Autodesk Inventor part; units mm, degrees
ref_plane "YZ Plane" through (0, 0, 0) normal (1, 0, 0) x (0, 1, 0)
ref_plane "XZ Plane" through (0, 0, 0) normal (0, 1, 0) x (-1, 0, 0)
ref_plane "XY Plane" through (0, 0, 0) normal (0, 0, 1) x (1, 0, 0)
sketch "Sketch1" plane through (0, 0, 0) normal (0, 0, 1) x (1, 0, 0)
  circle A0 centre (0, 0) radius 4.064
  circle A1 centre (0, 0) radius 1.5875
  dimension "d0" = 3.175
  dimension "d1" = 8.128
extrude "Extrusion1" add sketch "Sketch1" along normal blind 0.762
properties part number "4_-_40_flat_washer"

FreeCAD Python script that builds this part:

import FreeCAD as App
import Part
import Sketcher
Q = App.Units.Quantity

doc = App.newDocument("Part")
body = doc.addObject("PartDesign::Body", "Body")

# Sketch on XY plane
sketch1 = body.newObject("Sketcher::SketchObject", "Sketch")
sketch1.AttachmentSupport = (doc.getObject("XY_Plane"), [""])
sketch1.MapMode = "FlatFace"
sketch1.addGeometry([
    Part.Circle(App.Vector(0, 0, 0), App.Vector(0, 0, 1), 4.1),
    Part.Circle(App.Vector(0, 0, 0), App.Vector(0, 0, 1), 1.6),
], False)
sketch1.addConstraint([
    Sketcher.Constraint("Coincident", 0, 3, -1, 1),
    Sketcher.Constraint("Coincident", 1, 3, -1, 1),
    Sketcher.Constraint("Diameter", 0, Q("0.32 in")),
    Sketcher.Constraint("Diameter", 1, Q("0.125 in")),
])
pad1 = body.newObject("PartDesign::Pad", "Pad")
pad1.Profile = sketch1
pad1.Length = Q("0.03 in")

doc.recompute()
